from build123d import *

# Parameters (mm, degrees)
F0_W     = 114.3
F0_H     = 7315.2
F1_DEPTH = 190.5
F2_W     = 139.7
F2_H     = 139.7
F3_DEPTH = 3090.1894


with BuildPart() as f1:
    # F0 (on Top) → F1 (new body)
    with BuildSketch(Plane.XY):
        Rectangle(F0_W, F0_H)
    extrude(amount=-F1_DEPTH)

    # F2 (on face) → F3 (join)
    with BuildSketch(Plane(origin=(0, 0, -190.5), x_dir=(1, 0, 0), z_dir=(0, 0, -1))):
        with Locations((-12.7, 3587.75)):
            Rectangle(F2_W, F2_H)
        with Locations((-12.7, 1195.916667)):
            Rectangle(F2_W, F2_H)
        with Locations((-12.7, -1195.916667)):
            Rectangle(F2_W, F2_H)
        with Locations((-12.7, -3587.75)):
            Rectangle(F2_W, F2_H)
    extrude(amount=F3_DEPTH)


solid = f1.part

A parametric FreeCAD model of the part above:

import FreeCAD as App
import Part
import Sketcher
from FreeCAD import Vector
Q = App.Units.Quantity


def add_polygon(sketch, points):
    """Adds a closed chain of lines whose ends are joined by coincident constraints."""
    first, n = sketch.GeometryCount, len(points)
    for a, b in zip(points, points[1:] + points[:1]):
        sketch.addGeometry(Part.LineSegment(App.Vector(*a, 0), App.Vector(*b, 0)), False)
    for i in range(n):
        sketch.addConstraint(Sketcher.Constraint("Coincident", first + i, 2, first + (i + 1) % n, 1))

doc = App.newDocument("Part")
body = doc.addObject("PartDesign::Body", "Body")

# Sketch on XY plane
sketch1 = body.newObject("Sketcher::SketchObject", "Sketch")
sketch1.AttachmentSupport = (doc.getObject("XY_Plane"), [""])
sketch1.MapMode = "FlatFace"
add_polygon(sketch1, [(-57, 3658), (-57, -3658), (57, -3658), (57, 3658)])  # lines 0-3
sketch1.addConstraint(Sketcher.Constraint("Vertical", 0))
sketch1.addConstraint(Sketcher.Constraint("Horizontal", 1))
sketch1.addConstraint(Sketcher.Constraint("Vertical", 2))
sketch1.addConstraint(Sketcher.Constraint("Horizontal", 3))
sketch1.addConstraint(Sketcher.Constraint("Symmetric", 0, 2, 2, 2, -1, 1))
sketch1.addConstraint(Sketcher.Constraint("DistanceY", 0, 2, 0, 1, Q("288 in")))
sketch1.addConstraint(Sketcher.Constraint("DistanceX", 1, 1, 1, 2, Q("4.5 in")))
pad1 = body.newObject("PartDesign::Pad", "Pad")
pad1.Profile = sketch1
pad1.Length = Q("7.5 in")
pad1.Reversed = True

# Sketch on XY plane
sketch2 = body.newObject("Sketcher::SketchObject", "Sketch001")
sketch2.AttachmentSupport = (doc.getObject("XY_Plane"), [""])
sketch2.MapMode = "FlatFace"
sketch2.AttachmentOffset = App.Placement(Vector(0, 0, -7.5 * 25.4), App.Rotation())
add_polygon(sketch2, [(-83, -3658), (-83, -3518), (57, -3518), (57, -3658)])  # lines 0-3
add_polygon(sketch2, [(-83, -1266), (-83, -1126), (57, -1126), (57, -1266)])  # lines 4-7
add_polygon(sketch2, [(-83, 1126), (-83, 1266), (57, 1266), (57, 1126)])  # lines 8-11
add_polygon(sketch2, [(-83, 3518), (-83, 3658), (57, 3658), (57, 3518)])  # lines 12-15
sketch2.addConstraint(Sketcher.Constraint("Vertical", 0))
sketch2.addConstraint(Sketcher.Constraint("Horizontal", 1))
sketch2.addConstraint(Sketcher.Constraint("Vertical", 2))
sketch2.addConstraint(Sketcher.Constraint("Horizontal", 3))
sketch2.addConstraint(Sketcher.Constraint("Vertical", 4))
sketch2.addConstraint(Sketcher.Constraint("Horizontal", 5))
sketch2.addConstraint(Sketcher.Constraint("Vertical", 6))
sketch2.addConstraint(Sketcher.Constraint("Horizontal", 7))
sketch2.addConstraint(Sketcher.Constraint("Vertical", 8))
sketch2.addConstraint(Sketcher.Constraint("Horizontal", 9))
sketch2.addConstraint(Sketcher.Constraint("Vertical", 10))
sketch2.addConstraint(Sketcher.Constraint("Horizontal", 11))
sketch2.addConstraint(Sketcher.Constraint("Vertical", 12))
sketch2.addConstraint(Sketcher.Constraint("Horizontal", 13))
sketch2.addConstraint(Sketcher.Constraint("Vertical", 14))
sketch2.addConstraint(Sketcher.Constraint("Horizontal", 15))
sketch2.addConstraint(Sketcher.Constraint("Symmetric", 7, 2, 8, 2, -1))
sketch2.addConstraint(Sketcher.Constraint("Symmetric", 5, 2, 10, 2, -1))
sketch2.addConstraint(Sketcher.Constraint("Symmetric", 3, 2, 12, 2, -1))
sketch2.addConstraint(Sketcher.Constraint("Symmetric", 1, 2, 14, 2, -1))
sketch2.addConstraint(Sketcher.Constraint("Vertical", 3, 2, 4, 2))
sketch2.addConstraint(Sketcher.Constraint("Vertical", 2, 2, 5, 2))
sketch2.addConstraint(Sketcher.Constraint("Equal", 15, 0))
sketch2.addConstraint(Sketcher.Constraint("Equal", 2, 4))
sketch2.addConstraint(Sketcher.Constraint("DistanceX", 1, 1, 1, 2, Q("5.5 in")))
sketch2.addConstraint(Sketcher.Constraint("DistanceY", 2, 2, -1, 1, Q("144 in")))
sketch2.addConstraint(Sketcher.Constraint("DistanceX", 0, 2, -1, 1, Q("3.25 in")))
sketch2.addConstraint(Sketcher.Constraint("DistanceY", 4, 2, -1, 1, 1126.066667))
pad2 = body.newObject("PartDesign::Pad", "Pad001")
pad2.Profile = sketch2
pad2.Length = Q("121.661 in")
pad2.Reversed = True

doc.recompute()
